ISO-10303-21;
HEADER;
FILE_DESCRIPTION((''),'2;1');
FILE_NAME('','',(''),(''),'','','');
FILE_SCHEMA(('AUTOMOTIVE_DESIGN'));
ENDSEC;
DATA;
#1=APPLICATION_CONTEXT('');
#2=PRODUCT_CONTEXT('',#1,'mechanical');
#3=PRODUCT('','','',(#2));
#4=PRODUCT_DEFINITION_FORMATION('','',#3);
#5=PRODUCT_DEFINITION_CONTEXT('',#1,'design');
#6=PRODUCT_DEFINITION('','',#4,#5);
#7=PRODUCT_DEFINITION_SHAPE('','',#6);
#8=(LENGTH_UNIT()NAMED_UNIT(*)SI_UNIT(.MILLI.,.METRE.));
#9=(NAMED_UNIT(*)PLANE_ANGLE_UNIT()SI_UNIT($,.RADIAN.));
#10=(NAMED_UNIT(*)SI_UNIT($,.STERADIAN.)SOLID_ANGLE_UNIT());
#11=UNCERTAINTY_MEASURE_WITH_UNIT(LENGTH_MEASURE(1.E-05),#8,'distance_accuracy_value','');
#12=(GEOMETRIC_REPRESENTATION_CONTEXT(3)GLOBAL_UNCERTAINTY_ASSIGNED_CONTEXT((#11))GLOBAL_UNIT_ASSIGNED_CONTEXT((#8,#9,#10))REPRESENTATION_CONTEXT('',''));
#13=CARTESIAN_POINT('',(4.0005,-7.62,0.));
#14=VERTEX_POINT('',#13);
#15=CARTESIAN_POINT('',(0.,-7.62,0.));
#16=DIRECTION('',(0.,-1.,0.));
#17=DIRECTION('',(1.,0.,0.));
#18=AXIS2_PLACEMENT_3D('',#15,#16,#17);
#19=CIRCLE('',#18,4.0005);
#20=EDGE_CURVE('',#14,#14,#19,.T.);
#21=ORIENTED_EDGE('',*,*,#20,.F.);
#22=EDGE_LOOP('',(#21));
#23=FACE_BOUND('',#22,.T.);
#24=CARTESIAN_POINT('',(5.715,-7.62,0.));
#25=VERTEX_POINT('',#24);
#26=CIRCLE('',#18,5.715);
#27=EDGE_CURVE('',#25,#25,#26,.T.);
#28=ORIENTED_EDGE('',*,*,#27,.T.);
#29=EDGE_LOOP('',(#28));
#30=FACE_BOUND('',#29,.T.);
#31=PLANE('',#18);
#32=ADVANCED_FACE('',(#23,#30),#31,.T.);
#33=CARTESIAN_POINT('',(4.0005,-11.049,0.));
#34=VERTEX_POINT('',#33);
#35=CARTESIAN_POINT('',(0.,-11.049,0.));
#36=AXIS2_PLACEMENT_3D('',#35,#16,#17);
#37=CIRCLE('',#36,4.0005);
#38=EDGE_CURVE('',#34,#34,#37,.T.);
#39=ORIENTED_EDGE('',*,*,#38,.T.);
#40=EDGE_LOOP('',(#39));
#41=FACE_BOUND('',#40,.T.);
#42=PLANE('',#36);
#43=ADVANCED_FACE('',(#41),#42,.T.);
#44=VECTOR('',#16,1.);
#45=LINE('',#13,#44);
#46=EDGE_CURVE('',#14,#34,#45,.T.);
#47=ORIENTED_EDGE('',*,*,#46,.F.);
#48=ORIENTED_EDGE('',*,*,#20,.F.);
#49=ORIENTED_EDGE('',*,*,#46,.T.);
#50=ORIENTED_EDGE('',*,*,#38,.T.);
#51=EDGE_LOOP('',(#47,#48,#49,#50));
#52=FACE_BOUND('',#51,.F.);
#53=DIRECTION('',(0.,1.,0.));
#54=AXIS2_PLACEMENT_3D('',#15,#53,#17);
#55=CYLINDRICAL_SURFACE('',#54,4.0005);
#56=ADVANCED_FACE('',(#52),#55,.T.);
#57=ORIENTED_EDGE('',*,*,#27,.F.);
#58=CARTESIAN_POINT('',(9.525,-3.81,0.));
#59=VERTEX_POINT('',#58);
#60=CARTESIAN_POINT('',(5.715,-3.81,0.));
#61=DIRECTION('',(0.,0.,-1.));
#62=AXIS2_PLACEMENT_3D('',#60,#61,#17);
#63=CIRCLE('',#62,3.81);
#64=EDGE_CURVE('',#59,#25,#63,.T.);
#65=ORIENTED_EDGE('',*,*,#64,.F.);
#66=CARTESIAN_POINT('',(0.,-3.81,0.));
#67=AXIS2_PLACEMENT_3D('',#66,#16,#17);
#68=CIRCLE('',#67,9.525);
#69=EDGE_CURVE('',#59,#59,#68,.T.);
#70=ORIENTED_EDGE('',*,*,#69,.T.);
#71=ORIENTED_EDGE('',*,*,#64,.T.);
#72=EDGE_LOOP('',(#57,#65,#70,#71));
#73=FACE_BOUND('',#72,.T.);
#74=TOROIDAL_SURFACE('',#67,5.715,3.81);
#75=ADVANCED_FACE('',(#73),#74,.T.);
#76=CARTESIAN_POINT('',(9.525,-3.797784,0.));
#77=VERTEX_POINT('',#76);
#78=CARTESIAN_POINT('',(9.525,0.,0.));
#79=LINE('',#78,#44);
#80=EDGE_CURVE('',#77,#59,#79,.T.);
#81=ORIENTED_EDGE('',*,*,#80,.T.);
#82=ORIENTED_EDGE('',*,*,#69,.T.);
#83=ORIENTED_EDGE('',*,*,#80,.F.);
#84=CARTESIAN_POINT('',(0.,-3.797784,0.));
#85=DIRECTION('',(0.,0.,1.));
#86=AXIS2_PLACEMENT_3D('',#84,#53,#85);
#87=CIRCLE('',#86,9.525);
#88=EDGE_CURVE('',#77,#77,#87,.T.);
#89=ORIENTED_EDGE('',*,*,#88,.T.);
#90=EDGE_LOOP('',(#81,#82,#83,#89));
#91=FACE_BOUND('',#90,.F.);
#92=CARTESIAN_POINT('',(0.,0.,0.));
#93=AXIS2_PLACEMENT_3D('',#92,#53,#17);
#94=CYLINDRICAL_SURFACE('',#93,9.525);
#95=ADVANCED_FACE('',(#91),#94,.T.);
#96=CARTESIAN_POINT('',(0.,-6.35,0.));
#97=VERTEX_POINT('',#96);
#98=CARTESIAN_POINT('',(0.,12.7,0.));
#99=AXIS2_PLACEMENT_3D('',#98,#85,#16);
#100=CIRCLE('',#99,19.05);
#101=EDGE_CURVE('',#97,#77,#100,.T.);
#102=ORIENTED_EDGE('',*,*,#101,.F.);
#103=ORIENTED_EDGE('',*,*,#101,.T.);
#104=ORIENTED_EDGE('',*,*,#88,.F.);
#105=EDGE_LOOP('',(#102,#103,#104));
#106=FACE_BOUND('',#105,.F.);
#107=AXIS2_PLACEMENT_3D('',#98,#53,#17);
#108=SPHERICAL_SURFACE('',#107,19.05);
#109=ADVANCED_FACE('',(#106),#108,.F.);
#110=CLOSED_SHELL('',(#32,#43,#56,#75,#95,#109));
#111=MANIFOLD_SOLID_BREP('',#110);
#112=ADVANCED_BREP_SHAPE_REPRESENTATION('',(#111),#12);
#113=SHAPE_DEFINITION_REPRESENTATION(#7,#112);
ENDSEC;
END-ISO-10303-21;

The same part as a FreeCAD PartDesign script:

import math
import FreeCAD as App
import Part
import Sketcher
from FreeCAD import Vector
Q = App.Units.Quantity


def edges_at(feature, points):
    """Names of the edges that pass closest to the given points."""
    edges = feature.Shape.Edges
    near = lambda p: min(range(len(edges)), key=lambda i: edges[i].distToShape(Part.Vertex(*p))[0])
    return sorted({f"Edge{near(p) + 1}" for p in points})

doc = App.newDocument("Part")
body = doc.addObject("PartDesign::Body", "Body")

# Sketch on XZ plane
sketch1 = doc.addObject("Sketcher::SketchObject", "Sketch")
body.addObject(sketch1)
sketch1.AttachmentSupport = (doc.XZ_Plane, [""])
sketch1.MapMode = "FlatFace"
sketch1.addGeometry(Part.Circle(Vector(0, 0, 0), Vector(0, 0, 1), 10), False)
sketch1.addConstraint(Sketcher.Constraint("Coincident", 0, 3, -1, 1))
sketch1.addConstraint(Sketcher.Constraint("Diameter", 0, Q("0.75 in")))
pad1 = doc.addObject("PartDesign::Pad", "Pad")
body.addObject(pad1)
pad1.Profile = sketch1
pad1.Length = Q("0.3 in")

# Sketch on XY plane
sketch2 = doc.addObject("Sketcher::SketchObject", "Sketch001")
body.addObject(sketch2)
sketch2.AttachmentSupport = (doc.XY_Plane, [""])
sketch2.MapMode = "FlatFace"
sketch2.addGeometry(Part.LineSegment(Vector(0, 32, 0), Vector(0, -6, 0)), False)
sketch2.addGeometry(Part.ArcOfCircle(Part.Circle(Vector(0, 13, 0), Vector(0, 0, 1), 19), math.radians(-90), math.radians(90)), False)
sketch2.addConstraint(Sketcher.Constraint("Coincident", 0, 1, 1, 2))
sketch2.addConstraint(Sketcher.Constraint("Coincident", 1, 1, 0, 2))
sketch2.addConstraint(Sketcher.Constraint("Vertical", 0))
sketch2.addConstraint(Sketcher.Constraint("PointOnObject", 1, 3, -2))
sketch2.addConstraint(Sketcher.Constraint("PointOnObject", 0, 1, -2))
sketch2.addConstraint(Sketcher.Constraint("Radius", 1, Q("0.75 in")))
sketch2.addConstraint(Sketcher.Constraint("DistanceY", -1, 1, 1, 3, Q("0.5 in")))
groove = doc.addObject("PartDesign::Groove", "Groove")
body.addObject(groove)
groove.Profile = sketch2
groove.ReferenceAxis = (sketch2, ["V_Axis"])
groove.Angle = 360

# Sketch on XZ plane
sketch3 = doc.addObject("Sketcher::SketchObject", "Sketch002")
body.addObject(sketch3)
sketch3.AttachmentSupport = (doc.XZ_Plane, [""])
sketch3.MapMode = "FlatFace"
sketch3.AttachmentOffset = App.Placement(Vector(0, 0, 0.3 * 25.4), App.Rotation())
sketch3.addGeometry(Part.Circle(Vector(0, 0, 0), Vector(0, 0, 1), 4), False)
sketch3.addConstraint(Sketcher.Constraint("Coincident", 0, 3, -1, 1))
sketch3.addConstraint(Sketcher.Constraint("Diameter", 0, Q("0.315 in")))
pad2 = doc.addObject("PartDesign::Pad", "Pad001")
body.addObject(pad2)
pad2.Profile = sketch3
pad2.Length = Q("0.135 in")
doc.recompute()

fillet = doc.addObject("PartDesign::Fillet", "Fillet")
body.addObject(fillet)
fillet.Base = (pad2, edges_at(pad2, [(-9.525, -7.62, 0)]))
fillet.Radius = Q("0.15 in")

doc.recompute()
